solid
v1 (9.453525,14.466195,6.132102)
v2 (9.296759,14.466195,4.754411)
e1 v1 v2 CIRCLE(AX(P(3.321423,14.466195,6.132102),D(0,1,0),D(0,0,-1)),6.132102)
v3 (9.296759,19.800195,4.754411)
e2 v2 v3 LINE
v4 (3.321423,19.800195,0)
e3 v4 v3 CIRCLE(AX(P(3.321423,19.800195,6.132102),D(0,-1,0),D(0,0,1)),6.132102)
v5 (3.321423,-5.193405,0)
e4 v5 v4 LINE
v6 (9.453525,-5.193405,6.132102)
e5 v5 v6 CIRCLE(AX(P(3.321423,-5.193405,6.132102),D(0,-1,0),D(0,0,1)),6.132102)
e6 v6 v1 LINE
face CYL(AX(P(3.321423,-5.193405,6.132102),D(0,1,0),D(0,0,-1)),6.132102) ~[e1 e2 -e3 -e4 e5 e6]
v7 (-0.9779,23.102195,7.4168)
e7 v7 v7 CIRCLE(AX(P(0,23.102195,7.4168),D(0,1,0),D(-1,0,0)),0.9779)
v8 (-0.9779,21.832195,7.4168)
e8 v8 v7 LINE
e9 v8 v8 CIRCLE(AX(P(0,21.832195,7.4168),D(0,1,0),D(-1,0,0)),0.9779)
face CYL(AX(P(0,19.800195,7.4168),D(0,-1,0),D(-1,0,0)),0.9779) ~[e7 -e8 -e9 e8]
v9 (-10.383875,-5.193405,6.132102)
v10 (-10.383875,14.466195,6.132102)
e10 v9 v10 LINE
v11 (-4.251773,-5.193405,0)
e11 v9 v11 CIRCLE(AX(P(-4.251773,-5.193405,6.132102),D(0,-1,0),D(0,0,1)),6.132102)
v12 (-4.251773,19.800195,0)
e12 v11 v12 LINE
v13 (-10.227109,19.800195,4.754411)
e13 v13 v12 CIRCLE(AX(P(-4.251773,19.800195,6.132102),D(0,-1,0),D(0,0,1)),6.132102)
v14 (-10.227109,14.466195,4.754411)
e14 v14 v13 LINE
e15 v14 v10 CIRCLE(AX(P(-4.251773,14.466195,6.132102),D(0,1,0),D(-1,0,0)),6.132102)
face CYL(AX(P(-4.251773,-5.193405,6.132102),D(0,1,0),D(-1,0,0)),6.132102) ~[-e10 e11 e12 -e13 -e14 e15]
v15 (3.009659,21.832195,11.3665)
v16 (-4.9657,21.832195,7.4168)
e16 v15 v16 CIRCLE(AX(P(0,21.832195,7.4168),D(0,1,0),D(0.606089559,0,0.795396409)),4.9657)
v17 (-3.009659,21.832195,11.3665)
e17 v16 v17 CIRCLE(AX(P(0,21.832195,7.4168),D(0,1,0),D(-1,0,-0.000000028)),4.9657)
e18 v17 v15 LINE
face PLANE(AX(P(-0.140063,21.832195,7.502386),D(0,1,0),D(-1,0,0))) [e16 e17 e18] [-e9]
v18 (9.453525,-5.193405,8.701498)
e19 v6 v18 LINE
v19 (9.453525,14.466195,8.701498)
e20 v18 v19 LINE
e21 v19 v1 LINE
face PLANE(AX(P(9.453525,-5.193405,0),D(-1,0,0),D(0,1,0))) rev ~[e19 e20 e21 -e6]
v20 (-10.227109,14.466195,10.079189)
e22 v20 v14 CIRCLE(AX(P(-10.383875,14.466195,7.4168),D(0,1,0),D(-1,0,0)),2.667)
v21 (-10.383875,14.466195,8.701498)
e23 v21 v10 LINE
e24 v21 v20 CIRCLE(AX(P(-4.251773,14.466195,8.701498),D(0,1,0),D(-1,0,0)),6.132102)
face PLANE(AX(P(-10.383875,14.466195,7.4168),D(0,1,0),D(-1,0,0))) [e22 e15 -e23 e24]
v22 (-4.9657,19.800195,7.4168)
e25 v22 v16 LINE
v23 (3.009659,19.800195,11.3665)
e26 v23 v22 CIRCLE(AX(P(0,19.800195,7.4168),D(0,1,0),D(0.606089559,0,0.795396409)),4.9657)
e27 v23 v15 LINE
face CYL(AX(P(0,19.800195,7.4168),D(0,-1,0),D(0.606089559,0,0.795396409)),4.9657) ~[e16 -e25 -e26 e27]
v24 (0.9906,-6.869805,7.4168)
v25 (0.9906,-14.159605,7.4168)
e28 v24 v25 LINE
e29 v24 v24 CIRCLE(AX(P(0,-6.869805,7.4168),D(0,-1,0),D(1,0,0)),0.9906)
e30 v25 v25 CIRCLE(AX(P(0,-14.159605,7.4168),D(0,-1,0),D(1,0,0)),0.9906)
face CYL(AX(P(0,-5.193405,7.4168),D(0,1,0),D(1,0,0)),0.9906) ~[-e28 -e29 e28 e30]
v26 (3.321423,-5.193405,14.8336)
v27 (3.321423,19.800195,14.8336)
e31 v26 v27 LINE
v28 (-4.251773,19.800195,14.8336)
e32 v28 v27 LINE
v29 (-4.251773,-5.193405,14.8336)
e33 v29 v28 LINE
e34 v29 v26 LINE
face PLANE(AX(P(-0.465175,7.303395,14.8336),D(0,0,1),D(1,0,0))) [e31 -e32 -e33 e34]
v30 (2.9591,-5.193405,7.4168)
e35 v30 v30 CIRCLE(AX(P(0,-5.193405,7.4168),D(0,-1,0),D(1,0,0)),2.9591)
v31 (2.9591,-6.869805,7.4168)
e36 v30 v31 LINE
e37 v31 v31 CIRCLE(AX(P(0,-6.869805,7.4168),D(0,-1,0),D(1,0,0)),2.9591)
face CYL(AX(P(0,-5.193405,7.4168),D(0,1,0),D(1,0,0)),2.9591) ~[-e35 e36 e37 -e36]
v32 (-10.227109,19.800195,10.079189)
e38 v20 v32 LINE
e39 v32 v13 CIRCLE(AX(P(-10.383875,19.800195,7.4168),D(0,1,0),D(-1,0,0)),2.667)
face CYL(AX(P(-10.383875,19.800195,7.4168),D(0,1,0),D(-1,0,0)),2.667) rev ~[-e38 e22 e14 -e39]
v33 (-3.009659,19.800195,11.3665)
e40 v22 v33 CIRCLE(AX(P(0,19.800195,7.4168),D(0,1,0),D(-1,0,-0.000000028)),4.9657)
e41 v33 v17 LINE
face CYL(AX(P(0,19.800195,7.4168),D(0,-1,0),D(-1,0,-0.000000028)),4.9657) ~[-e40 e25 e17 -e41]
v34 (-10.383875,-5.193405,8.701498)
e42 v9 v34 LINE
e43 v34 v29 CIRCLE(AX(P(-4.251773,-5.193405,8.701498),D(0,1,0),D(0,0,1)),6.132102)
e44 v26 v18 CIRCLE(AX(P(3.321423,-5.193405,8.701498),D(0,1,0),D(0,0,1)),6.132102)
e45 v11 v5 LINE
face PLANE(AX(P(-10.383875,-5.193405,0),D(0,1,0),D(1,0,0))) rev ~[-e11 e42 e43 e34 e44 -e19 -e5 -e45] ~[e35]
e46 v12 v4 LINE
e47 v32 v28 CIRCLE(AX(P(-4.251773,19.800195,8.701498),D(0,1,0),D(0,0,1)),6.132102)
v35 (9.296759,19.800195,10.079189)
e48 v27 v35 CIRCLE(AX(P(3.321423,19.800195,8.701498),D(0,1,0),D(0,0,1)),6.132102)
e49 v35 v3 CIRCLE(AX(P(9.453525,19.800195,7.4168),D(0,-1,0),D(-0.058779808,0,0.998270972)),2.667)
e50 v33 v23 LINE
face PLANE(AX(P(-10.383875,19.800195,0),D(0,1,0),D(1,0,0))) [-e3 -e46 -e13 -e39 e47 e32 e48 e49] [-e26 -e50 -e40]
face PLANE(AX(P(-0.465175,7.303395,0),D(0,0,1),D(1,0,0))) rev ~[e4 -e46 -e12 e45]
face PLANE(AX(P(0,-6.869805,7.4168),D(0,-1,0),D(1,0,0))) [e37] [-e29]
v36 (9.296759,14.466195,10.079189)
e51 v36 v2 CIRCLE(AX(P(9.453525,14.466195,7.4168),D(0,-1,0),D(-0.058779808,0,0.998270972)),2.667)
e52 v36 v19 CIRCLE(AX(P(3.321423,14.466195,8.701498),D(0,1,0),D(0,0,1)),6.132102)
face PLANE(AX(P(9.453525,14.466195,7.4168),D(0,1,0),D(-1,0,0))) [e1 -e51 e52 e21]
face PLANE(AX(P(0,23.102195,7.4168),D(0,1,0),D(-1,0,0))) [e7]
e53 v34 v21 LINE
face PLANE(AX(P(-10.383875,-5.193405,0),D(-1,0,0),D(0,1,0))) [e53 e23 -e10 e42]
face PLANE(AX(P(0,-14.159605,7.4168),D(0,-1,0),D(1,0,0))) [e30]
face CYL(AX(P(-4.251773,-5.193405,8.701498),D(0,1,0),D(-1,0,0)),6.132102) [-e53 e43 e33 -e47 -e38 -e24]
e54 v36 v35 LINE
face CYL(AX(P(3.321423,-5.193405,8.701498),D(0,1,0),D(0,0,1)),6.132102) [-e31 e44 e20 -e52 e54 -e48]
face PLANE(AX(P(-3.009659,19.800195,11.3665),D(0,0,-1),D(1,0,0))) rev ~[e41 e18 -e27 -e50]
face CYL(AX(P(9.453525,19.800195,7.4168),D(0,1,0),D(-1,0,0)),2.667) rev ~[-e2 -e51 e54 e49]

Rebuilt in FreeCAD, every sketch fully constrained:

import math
import FreeCAD as App
import Part
import Sketcher
from FreeCAD import Vector
Q = App.Units.Quantity


def edges_at(feature, points):
    """Names of the edges that pass closest to the given points."""
    edges = feature.Shape.Edges
    near = lambda p: min(range(len(edges)), key=lambda i: edges[i].distToShape(Part.Vertex(*p))[0])
    return sorted({f"Edge{near(p) + 1}" for p in points})

doc = App.newDocument("Part")
body = doc.addObject("PartDesign::Body", "Body")

sketch1 = doc.addObject("Sketcher::SketchObject", "Sketch")
body.addObject(sketch1)
sketch1.AttachmentSupport = (doc.XY_Plane, [""])
sketch1.MapMode = "FlatFace"
sketch1.addGeometry(Part.LineSegment(Vector(-10.383875, 19.800195, 0), Vector(-10.383875, -5.193405, 0)), False)
sketch1.addGeometry(Part.LineSegment(Vector(-10.383875, -5.193405, 0), Vector(9.453525, -5.193405, 0)), False)
sketch1.addGeometry(Part.LineSegment(Vector(9.453525, -5.193405, 0), Vector(9.453525, 19.800195, 0)), False)
sketch1.addGeometry(Part.LineSegment(Vector(9.453525, 19.800195, 0), Vector(-10.383875, 19.800195, 0)), False)
sketch1.addConstraint(Sketcher.Constraint("Coincident", 0, 2, 1, 1))
sketch1.addConstraint(Sketcher.Constraint("Coincident", 1, 2, 2, 1))
sketch1.addConstraint(Sketcher.Constraint("Coincident", 2, 2, 3, 1))
sketch1.addConstraint(Sketcher.Constraint("Coincident", 3, 2, 0, 1))
sketch1.addConstraint(Sketcher.Constraint("Vertical", 0))
sketch1.addConstraint(Sketcher.Constraint("Horizontal", 1))
sketch1.addConstraint(Sketcher.Constraint("Vertical", 2))
sketch1.addConstraint(Sketcher.Constraint("Horizontal", 3))
sketch1.addConstraint(Sketcher.Constraint("DistanceX", 1, 1, 1, 2, Q("0.781 in")))
sketch1.addConstraint(Sketcher.Constraint("DistanceY", 0, 2, 0, 1, Q("0.984 in")))
sketch1.addConstraint(Sketcher.Constraint("DistanceX", 0, 2, -1, 1, Q("10.383875 mm")))
sketch1.addConstraint(Sketcher.Constraint("DistanceY", 0, 2, -1, 1, Q("5.193405 mm")))
pad1 = doc.addObject("PartDesign::Pad", "Pad")
body.addObject(pad1)
pad1.Profile = sketch1
pad1.Length = Q("0.584 in")

sketch2 = doc.addObject("Sketcher::SketchObject", "Sketch001")
body.addObject(sketch2)
sketch2.AttachmentSupport = (doc.XZ_Plane, [""])
sketch2.MapMode = "FlatFace"
sketch2.AttachmentOffset = App.Placement(Vector(0, 0, 5.193405), App.Rotation())
sketch2.addGeometry(Part.Circle(Vector(0, 7.4168, 0), Vector(0, 0, 1), 2.9591), False)
sketch2.addGeometry(Part.Circle(Vector(0, 7.4168, 0), Vector(0, 0, 1), 0.9906), False)
sketch2.addConstraint(Sketcher.Constraint("Coincident", 1, 3, 0, 3))
sketch2.addConstraint(Sketcher.Constraint("PointOnObject", 0, 3, -2))
sketch2.addConstraint(Sketcher.Constraint("Diameter", 0, Q("0.233 in")))
sketch2.addConstraint(Sketcher.Constraint("Diameter", 1, Q("0.078 in")))
sketch2.addConstraint(Sketcher.Constraint("DistanceY", -1, 1, 0, 3, Q("0.292 in")))
pad2 = doc.addObject("PartDesign::Pad", "Pad001")
body.addObject(pad2)
pad2.Profile = sketch2
pad2.Length = Q("0.066 in")

sketch3 = doc.addObject("Sketcher::SketchObject", "Sketch002")
body.addObject(sketch3)
sketch3.AttachmentSupport = (doc.XZ_Plane, [""])
sketch3.MapMode = "FlatFace"
sketch3.AttachmentOffset = App.Placement(Vector(0, 0, 5.193405), App.Rotation())
sketch3.addGeometry(Part.Circle(Vector(0, 7.4168, 0), Vector(0, 0, 1), 0.9906), False)
sketch3.addConstraint(Sketcher.Constraint("PointOnObject", 0, 3, -2))
sketch3.addConstraint(Sketcher.Constraint("Diameter", 0, Q("0.078 in")))
sketch3.addConstraint(Sketcher.Constraint("DistanceY", -1, 1, 0, 3, Q("0.292 in")))
pad3 = doc.addObject("PartDesign::Pad", "Pad002")
body.addObject(pad3)
pad3.Profile = sketch3
pad3.Length = Q("0.353 in")
doc.recompute()

fillet = doc.addObject("PartDesign::Fillet", "Fillet")
body.addObject(fillet)
fillet.Base = (pad3, edges_at(pad3, [
    (9.454, 7.303, 14.834),
    (9.454, 7.303, 0),
    (-10.384, 7.303, 14.834),
    (-10.384, 7.303, 0),
]))
fillet.Radius = 6.132102

sketch4 = doc.addObject("Sketcher::SketchObject", "Sketch003")
body.addObject(sketch4)
sketch4.AttachmentSupport = (doc.XZ_Plane, [""])
sketch4.MapMode = "FlatFace"
sketch4.AttachmentOffset = App.Placement(Vector(0, 0, -19.800195), App.Rotation())
sketch4.addGeometry(Part.ArcOfCircle(Part.Circle(Vector(0, 7.4168, 0), Vector(0, 0, 1), 4.9657), math.radians(-180), math.radians(52.692713)), False)
sketch4.addGeometry(Part.ArcOfCircle(Part.Circle(Vector(0, 7.4168, 0), Vector(0, 0, 1), 4.9657), math.radians(127.307287), math.radians(180.000002)), False)
sketch4.addGeometry(Part.LineSegment(Vector(-3.009659, 11.3665, 0), Vector(3.009659, 11.3665, 0)), False)
sketch4.addGeometry(Part.Circle(Vector(0, 7.4168, 0), Vector(0, 0, 1), 0.9779), False)
sketch4.addConstraint(Sketcher.Constraint("Tangent", 0, 1, 1, 2))
sketch4.addConstraint(Sketcher.Constraint("Coincident", 1, 1, 2, 1))
sketch4.addConstraint(Sketcher.Constraint("Coincident", 2, 2, 0, 2))
sketch4.addConstraint(Sketcher.Constraint("Horizontal", 2))
sketch4.addConstraint(Sketcher.Constraint("Coincident", 3, 3, 0, 3))
sketch4.addConstraint(Sketcher.Constraint("Equal", 0, 1))
sketch4.addConstraint(Sketcher.Constraint("PointOnObject", 0, 3, -2))
sketch4.addConstraint(Sketcher.Constraint("Horizontal", 3, 3, 0, 1))
sketch4.addConstraint(Sketcher.Constraint("Diameter", 3, Q("0.077 in")))
sketch4.addConstraint(Sketcher.Constraint("Radius", 0, Q("0.1955 in")))
sketch4.addConstraint(Sketcher.Constraint("DistanceY", -1, 1, 0, 3, Q("0.292 in")))
sketch4.addConstraint(Sketcher.Constraint("DistanceY", -1, 1, 1, 1, Q("0.4475 in")))
pad4 = doc.addObject("PartDesign::Pad", "Pad003")
body.addObject(pad4)
pad4.Profile = sketch4
pad4.Length = Q("0.08 in")
pad4.Reversed = True

sketch5 = doc.addObject("Sketcher::SketchObject", "Sketch004")
body.addObject(sketch5)
sketch5.AttachmentSupport = (doc.XZ_Plane, [""])
sketch5.MapMode = "FlatFace"
sketch5.AttachmentOffset = App.Placement(Vector(0, 0, -19.800195), App.Rotation())
sketch5.addGeometry(Part.Circle(Vector(0, 7.4168, 0), Vector(0, 0, 1), 0.9779), False)
sketch5.addConstraint(Sketcher.Constraint("PointOnObject", 0, 3, -2))
sketch5.addConstraint(Sketcher.Constraint("Diameter", 0, Q("0.077 in")))
sketch5.addConstraint(Sketcher.Constraint("DistanceY", -1, 1, 0, 3, Q("0.292 in")))
pad5 = doc.addObject("PartDesign::Pad", "Pad004")
body.addObject(pad5)
pad5.Profile = sketch5
pad5.Length = Q("0.13 in")
pad5.Reversed = True

sketch6 = doc.addObject("Sketcher::SketchObject", "Sketch005")
body.addObject(sketch6)
sketch6.AttachmentSupport = (doc.XZ_Plane, [""])
sketch6.MapMode = "FlatFace"
sketch6.AttachmentOffset = App.Placement(Vector(0, 0, -19.800195), App.Rotation())
sketch6.addGeometry(Part.Circle(Vector(9.453525, 7.4168, 0), Vector(0, 0, 1), 2.667), False)
sketch6.addGeometry(Part.Circle(Vector(-10.383875, 7.4168, 0), Vector(0, 0, 1), 2.667), False)
sketch6.addConstraint(Sketcher.Constraint("Equal", 0, 1))
sketch6.addConstraint(Sketcher.Constraint("Horizontal", 0, 3, 1, 3))
sketch6.addConstraint(Sketcher.Constraint("Diameter", 0, Q("0.21 in")))
sketch6.addConstraint(Sketcher.Constraint("DistanceY", -1, 1, 0, 3, Q("0.292 in")))
sketch6.addConstraint(Sketcher.Constraint("DistanceX", 1, 3, 0, 3, Q("0.781 in")))
sketch6.addConstraint(Sketcher.Constraint("DistanceX", -1, 1, 0, 3, Q("9.453525 mm")))
pocket1 = doc.addObject("PartDesign::Pocket", "Pocket")
body.addObject(pocket1)
pocket1.Profile = sketch6
pocket1.Length = Q("0.21 in")
pocket1.Reversed = True

doc.recompute()
